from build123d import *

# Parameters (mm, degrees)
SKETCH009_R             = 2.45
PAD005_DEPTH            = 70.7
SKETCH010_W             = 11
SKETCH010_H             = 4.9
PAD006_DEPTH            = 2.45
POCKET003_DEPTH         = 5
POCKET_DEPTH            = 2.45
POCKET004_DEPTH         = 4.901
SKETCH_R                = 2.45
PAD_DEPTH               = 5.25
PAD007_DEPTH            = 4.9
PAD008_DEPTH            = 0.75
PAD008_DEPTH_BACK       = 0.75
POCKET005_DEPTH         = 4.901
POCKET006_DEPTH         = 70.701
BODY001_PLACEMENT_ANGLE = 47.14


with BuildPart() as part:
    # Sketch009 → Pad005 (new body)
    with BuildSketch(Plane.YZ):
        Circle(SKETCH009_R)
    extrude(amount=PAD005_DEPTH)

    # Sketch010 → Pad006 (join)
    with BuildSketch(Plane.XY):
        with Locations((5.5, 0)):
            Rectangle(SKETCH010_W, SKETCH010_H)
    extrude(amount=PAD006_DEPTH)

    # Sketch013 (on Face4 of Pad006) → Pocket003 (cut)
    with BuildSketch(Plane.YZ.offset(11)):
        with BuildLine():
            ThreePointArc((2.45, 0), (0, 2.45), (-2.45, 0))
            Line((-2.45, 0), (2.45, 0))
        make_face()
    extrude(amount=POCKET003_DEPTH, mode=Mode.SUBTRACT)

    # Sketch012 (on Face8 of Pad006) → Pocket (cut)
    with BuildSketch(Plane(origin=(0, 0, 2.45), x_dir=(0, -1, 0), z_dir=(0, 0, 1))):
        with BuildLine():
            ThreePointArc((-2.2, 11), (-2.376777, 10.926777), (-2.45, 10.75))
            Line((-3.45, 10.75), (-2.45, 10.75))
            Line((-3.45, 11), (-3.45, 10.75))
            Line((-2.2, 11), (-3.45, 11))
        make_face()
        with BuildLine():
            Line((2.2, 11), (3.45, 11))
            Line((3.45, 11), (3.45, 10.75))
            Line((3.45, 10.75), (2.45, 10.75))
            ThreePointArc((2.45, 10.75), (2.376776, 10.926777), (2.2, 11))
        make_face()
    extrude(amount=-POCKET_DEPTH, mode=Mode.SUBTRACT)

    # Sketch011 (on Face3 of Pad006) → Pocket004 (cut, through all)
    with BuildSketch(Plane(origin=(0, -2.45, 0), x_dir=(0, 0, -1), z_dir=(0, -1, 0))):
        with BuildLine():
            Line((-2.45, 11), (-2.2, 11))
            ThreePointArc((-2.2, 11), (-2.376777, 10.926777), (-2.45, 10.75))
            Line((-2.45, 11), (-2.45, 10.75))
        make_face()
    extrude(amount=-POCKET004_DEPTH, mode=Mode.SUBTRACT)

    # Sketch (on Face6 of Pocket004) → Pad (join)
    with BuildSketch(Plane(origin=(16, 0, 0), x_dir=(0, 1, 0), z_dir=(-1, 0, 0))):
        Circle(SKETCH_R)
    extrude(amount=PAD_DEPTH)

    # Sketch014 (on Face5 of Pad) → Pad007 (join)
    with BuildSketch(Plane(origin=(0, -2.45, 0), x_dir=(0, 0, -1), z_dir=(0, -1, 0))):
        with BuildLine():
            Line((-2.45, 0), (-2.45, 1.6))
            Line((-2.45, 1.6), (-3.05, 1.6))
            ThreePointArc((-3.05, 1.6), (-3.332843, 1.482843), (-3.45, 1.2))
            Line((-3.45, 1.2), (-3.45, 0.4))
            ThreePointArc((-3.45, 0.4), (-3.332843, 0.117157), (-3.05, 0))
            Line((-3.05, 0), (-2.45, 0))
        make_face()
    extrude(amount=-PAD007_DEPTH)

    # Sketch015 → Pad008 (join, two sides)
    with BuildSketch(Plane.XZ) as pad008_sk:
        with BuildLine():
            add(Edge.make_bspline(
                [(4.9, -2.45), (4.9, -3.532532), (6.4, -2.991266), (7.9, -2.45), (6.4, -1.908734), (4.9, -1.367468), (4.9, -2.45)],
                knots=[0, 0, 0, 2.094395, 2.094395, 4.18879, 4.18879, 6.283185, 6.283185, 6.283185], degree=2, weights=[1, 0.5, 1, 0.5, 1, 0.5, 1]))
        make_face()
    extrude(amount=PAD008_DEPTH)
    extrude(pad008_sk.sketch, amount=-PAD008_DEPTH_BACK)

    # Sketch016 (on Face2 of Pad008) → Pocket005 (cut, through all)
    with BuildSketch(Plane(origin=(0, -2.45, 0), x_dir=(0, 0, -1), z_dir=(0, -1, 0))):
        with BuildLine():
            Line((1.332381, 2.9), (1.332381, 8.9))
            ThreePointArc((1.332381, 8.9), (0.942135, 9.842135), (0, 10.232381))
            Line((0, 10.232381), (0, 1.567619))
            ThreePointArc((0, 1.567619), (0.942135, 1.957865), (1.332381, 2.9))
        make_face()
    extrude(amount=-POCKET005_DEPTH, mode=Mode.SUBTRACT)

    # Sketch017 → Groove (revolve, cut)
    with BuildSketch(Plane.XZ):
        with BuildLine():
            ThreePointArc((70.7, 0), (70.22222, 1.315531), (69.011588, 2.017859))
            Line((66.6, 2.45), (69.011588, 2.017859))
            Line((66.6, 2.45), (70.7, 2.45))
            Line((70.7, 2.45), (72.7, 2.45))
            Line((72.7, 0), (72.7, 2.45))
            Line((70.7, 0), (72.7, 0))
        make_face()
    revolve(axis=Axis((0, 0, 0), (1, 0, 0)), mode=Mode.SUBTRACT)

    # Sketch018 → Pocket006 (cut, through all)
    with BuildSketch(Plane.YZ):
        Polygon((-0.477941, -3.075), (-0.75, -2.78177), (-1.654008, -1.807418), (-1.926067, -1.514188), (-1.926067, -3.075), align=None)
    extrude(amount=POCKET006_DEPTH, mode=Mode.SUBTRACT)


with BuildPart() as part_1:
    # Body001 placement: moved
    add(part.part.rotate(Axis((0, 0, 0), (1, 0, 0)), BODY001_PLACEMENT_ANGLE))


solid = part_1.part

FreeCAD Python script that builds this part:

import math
import FreeCAD as App
import Part
import Sketcher
from FreeCAD import Vector

doc = App.newDocument("Part")
params = doc.addObject("Spreadsheet::Sheet", "Params")
for row, (alias, value) in enumerate([
    ("sketch1_diameter", "4.9 mm"),
    ("pad1_length", "70.7 mm"),
    ("sketch2_width", "11 mm"),
    ("sketch2_height", "4.9 mm"),
    ("pad2_length", "2.45 mm"),
    ("sketch3_radius", "2.45 mm"),
    ("pocket1_length", "5 mm"),
    ("sketch4_height", "1 mm"),
    ("sketch4_radius", "0.249999 mm"),
    ("pocket2_length", "2.45 mm"),
    ("sketch5_radius", "0.249999 mm"),
    ("sketch6_diameter", "4.9 mm"),
    ("pad3_length", "5.25 mm"),
    ("sketch7_radius", "0.399999 mm"),
    ("sketch7_width", "1.6 mm"),
    ("sketch7_width2", "0.8 mm"),
    ("sketch7_height", "0.6 mm"),
    ("pad4_length", "4.9 mm"),
    ("pad5_length", "0.75 mm"),
    ("pad5_length2", "0.75 mm"),
    ("sketch9_width", "6 mm"),
    ("sketch10_width", "2 mm"),
    ("sketch10_width2", "6.1 mm"),
    ("sketch10_height", "2.45 mm"),
    ("sketch10_length", "2.450001 mm"),
    ("groove_angle", "360 deg"),
    ("sketch11_length", "0.4 mm"),
], start=1):
    params.set(f"A{row}", alias)
    params.set(f"B{row}", "=" + value)
    params.setAlias(f"B{row}", alias)

body = doc.addObject("PartDesign::Body", "Body")

# Sketch on YZ plane
sketch1 = body.newObject("Sketcher::SketchObject", "Sketch")
sketch1.AttachmentSupport = (doc.getObject("YZ_Plane"), [""])
sketch1.MapMode = "FlatFace"
sketch1.addGeometry(Part.Circle(Vector(0, 0, 0), Vector(0, 0, 1), 2.5), False)
sketch1.addConstraint(Sketcher.Constraint("Coincident", 0, 3, -1, 1))
sketch1.addConstraint(Sketcher.Constraint("Diameter", 0, 4.9))
sketch1.setExpression("Constraints[1]", "Params.sketch1_diameter")
pad1 = body.newObject("PartDesign::Pad", "Pad")
pad1.Profile = sketch1
pad1.setExpression("Length", "Params.pad1_length")

# Sketch on XY plane
sketch2 = body.newObject("Sketcher::SketchObject", "Sketch001")
sketch2.AttachmentSupport = (doc.getObject("XY_Plane"), [""])
sketch2.MapMode = "FlatFace"
sketch2.addGeometry(Part.LineSegment(Vector(0, 2.5, 0), Vector(0, -2.5, 0)), False)
sketch2.addGeometry(Part.LineSegment(Vector(0, -2.5, 0), Vector(11, -2.5, 0)), False)
sketch2.addGeometry(Part.LineSegment(Vector(11, -2.5, 0), Vector(11, 2.5, 0)), False)
sketch2.addGeometry(Part.LineSegment(Vector(11, 2.5, 0), Vector(0, 2.5, 0)), False)
sketch2.addConstraint(Sketcher.Constraint("Coincident", 0, 2, 1, 1))
sketch2.addConstraint(Sketcher.Constraint("Coincident", 1, 2, 2, 1))
sketch2.addConstraint(Sketcher.Constraint("Coincident", 2, 2, 3, 1))
sketch2.addConstraint(Sketcher.Constraint("Coincident", 3, 2, 0, 1))
sketch2.addConstraint(Sketcher.Constraint("Vertical", 0))
sketch2.addConstraint(Sketcher.Constraint("Horizontal", 1))
sketch2.addConstraint(Sketcher.Constraint("Vertical", 2))
sketch2.addConstraint(Sketcher.Constraint("Horizontal", 3))
sketch2.addConstraint(Sketcher.Constraint("Symmetric", 0, 2, 3, 2, -1, 1))
sketch2.addConstraint(Sketcher.Constraint("DistanceX", 1, 1, 1, 2, 11.0))
sketch2.addConstraint(Sketcher.Constraint("DistanceY", 0, 2, 0, 1, 4.9))
sketch2.setExpression("Constraints[9]", "Params.sketch2_width")
sketch2.setExpression("Constraints[10]", "Params.sketch2_height")
pad2 = body.newObject("PartDesign::Pad", "Pad001")
pad2.Profile = sketch2
pad2.setExpression("Length", "Params.pad2_length")

# Sketch on YZ plane
sketch3 = body.newObject("Sketcher::SketchObject", "Sketch002")
sketch3.AttachmentSupport = (doc.getObject("YZ_Plane"), [""])
sketch3.MapMode = "FlatFace"
sketch3.AttachmentOffset = App.Placement(Vector(0, 0, 11), App.Rotation())
sketch3.addGeometry(Part.ArcOfCircle(Part.Circle(Vector(0, 0, 0), Vector(0, 0, 1), 2.5), math.radians(0), math.radians(180)), False)
sketch3.addGeometry(Part.LineSegment(Vector(-2.5, 0, 0), Vector(2.5, 0, 0)), False)
sketch3.addConstraint(Sketcher.Constraint("Coincident", 0, 1, 1, 2))
sketch3.addConstraint(Sketcher.Constraint("Coincident", 1, 1, 0, 2))
sketch3.addConstraint(Sketcher.Constraint("Horizontal", 1))
sketch3.addConstraint(Sketcher.Constraint("Coincident", 0, 3, -1, 1))
sketch3.addConstraint(Sketcher.Constraint("PointOnObject", 0, 1, -1))
sketch3.addConstraint(Sketcher.Constraint("Radius", 0, 2.45))
sketch3.setExpression("Constraints[5]", "Params.sketch3_radius")
pocket1 = body.newObject("PartDesign::Pocket", "Pocket")
pocket1.Profile = sketch3
pocket1.setExpression("Length", "Params.pocket1_length")
pocket1.Reversed = True

# Sketch on XY plane
sketch4 = body.newObject("Sketcher::SketchObject", "Sketch003")
sketch4.AttachmentSupport = (doc.getObject("XY_Plane"), [""])
sketch4.MapMode = "FlatFace"
sketch4.AttachmentOffset = App.Placement(Vector(0, 0, 2.45), App.Rotation())
sketch4.addGeometry(Part.ArcOfCircle(Part.Circle(Vector(10.75, 2.2, 0), Vector(0, 0, 1), 0.25), math.radians(0), math.radians(90)), False)
sketch4.addGeometry(Part.LineSegment(Vector(11, 2.2, 0), Vector(11, 3.45, 0)), False)
sketch4.addGeometry(Part.LineSegment(Vector(11, 3.45, 0), Vector(10.75, 3.45, 0)), False)
sketch4.addGeometry(Part.LineSegment(Vector(10.75, 3.45, 0), Vector(10.75, 2.45, 0)), False)
sketch4.addGeometry(Part.LineSegment(Vector(11, -3.45, 0), Vector(11, -2.2, 0)), False)
sketch4.addGeometry(Part.ArcOfCircle(Part.Circle(Vector(10.75, -2.2, 0), Vector(0, 0, 1), 0.25), math.radians(-90), math.radians(0)), False)
sketch4.addGeometry(Part.LineSegment(Vector(10.75, -2.45, 0), Vector(10.75, -3.45, 0)), False)
sketch4.addGeometry(Part.LineSegment(Vector(10.75, -3.45, 0), Vector(11, -3.45, 0)), False)
sketch4.addConstraint(Sketcher.Constraint("Coincident", 0, 1, 1, 1))
sketch4.addConstraint(Sketcher.Constraint("Coincident", 1, 2, 2, 1))
sketch4.addConstraint(Sketcher.Constraint("Coincident", 2, 2, 3, 1))
sketch4.addConstraint(Sketcher.Constraint("Coincident", 3, 2, 0, 2))
sketch4.addConstraint(Sketcher.Constraint("Coincident", 4, 2, 5, 2))
sketch4.addConstraint(Sketcher.Constraint("Coincident", 5, 1, 6, 1))
sketch4.addConstraint(Sketcher.Constraint("Coincident", 6, 2, 7, 1))
sketch4.addConstraint(Sketcher.Constraint("Coincident", 7, 2, 4, 1))
sketch4.addConstraint(Sketcher.Constraint("Vertical", 1))
sketch4.addConstraint(Sketcher.Constraint("Horizontal", 2))
sketch4.addConstraint(Sketcher.Constraint("Vertical", 3))
sketch4.addConstraint(Sketcher.Constraint("Vertical", 4))
sketch4.addConstraint(Sketcher.Constraint("Vertical", 6))
sketch4.addConstraint(Sketcher.Constraint("Horizontal", 7))
sketch4.addConstraint(Sketcher.Constraint("Equal", 0, 5))
sketch4.addConstraint(Sketcher.Constraint("Symmetric", 0, 3, 5, 3, -1))
sketch4.addConstraint(Sketcher.Constraint("Symmetric", 2, 2, 6, 2, -1))
sketch4.addConstraint(Sketcher.Constraint("Horizontal", 5, 3, 4, 2))
sketch4.addConstraint(Sketcher.Constraint("Vertical", 5, 3, 2, 2))
sketch4.addConstraint(Sketcher.Constraint("Equal", 1, 4))
sketch4.addConstraint(Sketcher.Constraint("DistanceY", 3, 2, 3, 1, 1.0))
sketch4.addConstraint(Sketcher.Constraint("Radius", 0, 0.249999))
sketch4.addConstraint(Sketcher.Constraint("DistanceX", -1, 1, 0, 1, 11.0))
sketch4.addConstraint(Sketcher.Constraint("DistanceY", -1, 1, 0, 3, 2.200001))
sketch4.setExpression("Constraints[20]", "Params.sketch4_height")
sketch4.setExpression("Constraints[21]", "Params.sketch4_radius")
pocket2 = body.newObject("PartDesign::Pocket", "Pocket001")
pocket2.Profile = sketch4
pocket2.setExpression("Length", "Params.pocket2_length")

# Sketch on XZ plane
sketch5 = body.newObject("Sketcher::SketchObject", "Sketch004")
sketch5.AttachmentSupport = (doc.getObject("XZ_Plane"), [""])
sketch5.MapMode = "FlatFace"
sketch5.AttachmentOffset = App.Placement(Vector(0, 0, 2.45), App.Rotation())
sketch5.addGeometry(Part.LineSegment(Vector(11, 2.2, 0), Vector(11, 2.45, 0)), False)
sketch5.addGeometry(Part.LineSegment(Vector(11, 2.45, 0), Vector(10.75, 2.45, 0)), False)
sketch5.addGeometry(Part.ArcOfCircle(Part.Circle(Vector(10.75, 2.2, 0), Vector(0, 0, 1), 0.25), math.radians(0), math.radians(90)), False)
sketch5.addConstraint(Sketcher.Constraint("Coincident", 0, 2, 1, 1))
sketch5.addConstraint(Sketcher.Constraint("Coincident", 1, 2, 2, 2))
sketch5.addConstraint(Sketcher.Constraint("Coincident", 2, 1, 0, 1))
sketch5.addConstraint(Sketcher.Constraint("Vertical", 0))
sketch5.addConstraint(Sketcher.Constraint("Horizontal", 1))
sketch5.addConstraint(Sketcher.Constraint("Vertical", 2, 3, 1, 2))
sketch5.addConstraint(Sketcher.Constraint("Equal", 1, 0))
sketch5.addConstraint(Sketcher.Constraint("Radius", 2, 0.249999))
sketch5.addConstraint(Sketcher.Constraint("DistanceX", -1, 1, 0, 2, 11.0))
sketch5.addConstraint(Sketcher.Constraint("DistanceY", -1, 1, 2, 3, 2.200001))
sketch5.setExpression("Constraints[7]", "Params.sketch5_radius")
pocket3 = body.newObject("PartDesign::Pocket", "Pocket002")
pocket3.Profile = sketch5
pocket3.Type = "ThroughAll"

# Sketch on YZ plane
sketch6 = body.newObject("Sketcher::SketchObject", "Sketch005")
sketch6.AttachmentSupport = (doc.getObject("YZ_Plane"), [""])
sketch6.MapMode = "FlatFace"
sketch6.AttachmentOffset = App.Placement(Vector(0, 0, 16), App.Rotation())
sketch6.addGeometry(Part.Circle(Vector(0, 0, 0), Vector(0, 0, 1), 2.5), False)
sketch6.addConstraint(Sketcher.Constraint("Coincident", 0, 3, -1, 1))
sketch6.addConstraint(Sketcher.Constraint("Diameter", 0, 4.9))
sketch6.setExpression("Constraints[1]", "Params.sketch6_diameter")
pad3 = body.newObject("PartDesign::Pad", "Pad002")
pad3.Profile = sketch6
pad3.setExpression("Length", "Params.pad3_length")
pad3.Reversed = True

# Sketch on XZ plane
sketch7 = body.newObject("Sketcher::SketchObject", "Sketch006")
sketch7.AttachmentSupport = (doc.getObject("XZ_Plane"), [""])
sketch7.MapMode = "FlatFace"
sketch7.AttachmentOffset = App.Placement(Vector(0, 0, 2.45), App.Rotation())
sketch7.addGeometry(Part.LineSegment(Vector(0, 2.45, 0), Vector(1.6, 2.45, 0)), False)
sketch7.addGeometry(Part.LineSegment(Vector(1.6, 2.45, 0), Vector(1.6, 3.05, 0)), False)
sketch7.addGeometry(Part.ArcOfCircle(Part.Circle(Vector(1.2, 3.05, 0), Vector(0, 0, 1), 0.4), math.radians(0), math.radians(90)), False)
sketch7.addGeometry(Part.LineSegment(Vector(1.2, 3.45, 0), Vector(0.4, 3.45, 0)), False)
sketch7.addGeometry(Part.ArcOfCircle(Part.Circle(Vector(0.4, 3.05, 0), Vector(0, 0, 1), 0.4), math.radians(90), math.radians(180)), False)
sketch7.addGeometry(Part.LineSegment(Vector(0, 3.05, 0), Vector(0, 2.45, 0)), False)
sketch7.addConstraint(Sketcher.Constraint("Coincident", 0, 2, 1, 1))
sketch7.addConstraint(Sketcher.Constraint("Coincident", 1, 2, 2, 1))
sketch7.addConstraint(Sketcher.Constraint("Coincident", 2, 2, 3, 1))
sketch7.addConstraint(Sketcher.Constraint("Coincident", 3, 2, 4, 1))
sketch7.addConstraint(Sketcher.Constraint("Coincident", 4, 2, 5, 1))
sketch7.addConstraint(Sketcher.Constraint("Coincident", 5, 2, 0, 1))
sketch7.addConstraint(Sketcher.Constraint("Horizontal", 0))
sketch7.addConstraint(Sketcher.Constraint("Vertical", 1))
sketch7.addConstraint(Sketcher.Constraint("Horizontal", 3))
sketch7.addConstraint(Sketcher.Constraint("Vertical", 5))
sketch7.addConstraint(Sketcher.Constraint("Equal", 2, 4))
sketch7.addConstraint(Sketcher.Constraint("PointOnObject", 4, 2, -2))
sketch7.addConstraint(Sketcher.Constraint("Horizontal", 4, 3, 1, 2))
sketch7.addConstraint(Sketcher.Constraint("Horizontal", 1, 2, 4, 2))
sketch7.addConstraint(Sketcher.Constraint("Vertical", 4, 3, 3, 2))
sketch7.addConstraint(Sketcher.Constraint("Radius", 2, 0.399999))
sketch7.addConstraint(Sketcher.Constraint("DistanceX", 0, 1, 0, 2, 1.6))
sketch7.addConstraint(Sketcher.Constraint("DistanceX", 3, 2, 3, 1, 0.8))
sketch7.addConstraint(Sketcher.Constraint("DistanceY", 1, 1, 1, 2, 0.6))
sketch7.addConstraint(Sketcher.Constraint("DistanceY", -1, 1, 2, 3, 3.050001))
sketch7.setExpression("Constraints[15]", "Params.sketch7_radius")
sketch7.setExpression("Constraints[16]", "Params.sketch7_width")
sketch7.setExpression("Constraints[17]", "Params.sketch7_width2")
sketch7.setExpression("Constraints[18]", "Params.sketch7_height")
pad4 = body.newObject("PartDesign::Pad", "Pad003")
pad4.Profile = sketch7
pad4.setExpression("Length", "Params.pad4_length")
pad4.Reversed = True

# Sketch on XZ plane
sketch8 = body.newObject("Sketcher::SketchObject", "Sketch007")
sketch8.AttachmentSupport = (doc.getObject("XZ_Plane"), [""])
sketch8.MapMode = "FlatFace"
sketch8.addGeometry(Part.BSplineCurve([Vector(4.9, -2.45, 0), Vector(4.9, -3.532532, 0), Vector(6.4, -2.991266, 0), Vector(7.9, -2.45, 0), Vector(6.4, -1.908734, 0), Vector(4.9, -1.367468, 0), Vector(4.9, -2.45, 0)], [3, 2, 2, 3], [0, 2.094395, 4.18879, 6.283185], False, 2, [1, 0.5, 1, 0.5, 1, 0.5, 1], False), False)
sketch8.addConstraint(Sketcher.Constraint("Block", 0))
pad5 = body.newObject("PartDesign::Pad", "Pad004")
pad5.Profile = sketch8
pad5.Type = "TwoLengths"
pad5.setExpression("Length", "Params.pad5_length")
pad5.setExpression("Length2", "Params.pad5_length2")

# Sketch on XZ plane
sketch9 = body.newObject("Sketcher::SketchObject", "Sketch008")
sketch9.AttachmentSupport = (doc.getObject("XZ_Plane"), [""])
sketch9.MapMode = "FlatFace"
sketch9.AttachmentOffset = App.Placement(Vector(0, 0, 2.45), App.Rotation())
sketch9.addGeometry(Part.LineSegment(Vector(2.9, -1.3, 0), Vector(8.9, -1.3, 0)), False)
sketch9.addGeometry(Part.ArcOfCircle(Part.Circle(Vector(8.9, 0, 0), Vector(0, 0, 1), 1.3), math.radians(-90), math.radians(0)), False)
sketch9.addGeometry(Part.LineSegment(Vector(10.2, 0, 0), Vector(1.6, 0, 0)), False)
sketch9.addGeometry(Part.ArcOfCircle(Part.Circle(Vector(2.9, 0, 0), Vector(0, 0, 1), 1.3), math.radians(-180), math.radians(-90)), False)
sketch9.addConstraint(Sketcher.Constraint("Tangent", 0, 2, 1, 1))
sketch9.addConstraint(Sketcher.Constraint("Coincident", 1, 2, 2, 1))
sketch9.addConstraint(Sketcher.Constraint("Coincident", 2, 2, 3, 1))
sketch9.addConstraint(Sketcher.Constraint("Tangent", 3, 2, 0, 1))
sketch9.addConstraint(Sketcher.Constraint("Horizontal", 0))
sketch9.addConstraint(Sketcher.Constraint("Horizontal", 2))
sketch9.addConstraint(Sketcher.Constraint("Equal", 1, 3))
sketch9.addConstraint(Sketcher.Constraint("PointOnObject", 1, 2, -1))
sketch9.addConstraint(Sketcher.Constraint("DistanceX", 0, 1, 0, 2, 6.0))
sketch9.addConstraint(Sketcher.Constraint("DistanceX", -1, 1, 0, 2, 8.9))
sketch9.addConstraint(Sketcher.Constraint("Radius", 1, 1.332383))
sketch9.addConstraint(Sketcher.Constraint("DistanceY", 0, 2, -1, 1, 1.332381))
sketch9.setExpression("Constraints[8]", "Params.sketch9_width")
pocket4 = body.newObject("PartDesign::Pocket", "Pocket003")
pocket4.Profile = sketch9
pocket4.Type = "ThroughAll"

# Sketch on XZ plane
sketch10 = body.newObject("Sketcher::SketchObject", "Sketch009")
sketch10.AttachmentSupport = (doc.getObject("XZ_Plane"), [""])
sketch10.MapMode = "FlatFace"
sketch10.addGeometry(Part.ArcOfCircle(Part.Circle(Vector(68.6, 0, 0), Vector(0, 0, 1), 2.1), math.radians(0), math.radians(80)), False)
sketch10.addGeometry(Part.LineSegment(Vector(70.7, 0, 0), Vector(72.7, 0, 0)), False)
sketch10.addGeometry(Part.LineSegment(Vector(72.7, 0, 0), Vector(72.7, 2.5, 0)), False)
sketch10.addGeometry(Part.LineSegment(Vector(72.7, 2.5, 0), Vector(66.6, 2.5, 0)), False)
sketch10.addGeometry(Part.LineSegment(Vector(66.6, 2.5, 0), Vector(69, 2, 0)), False)
sketch10.addConstraint(Sketcher.Constraint("Coincident", 0, 1, 1, 1))
sketch10.addConstraint(Sketcher.Constraint("Coincident", 1, 2, 2, 1))
sketch10.addConstraint(Sketcher.Constraint("Coincident", 2, 2, 3, 1))
sketch10.addConstraint(Sketcher.Constraint("Coincident", 3, 2, 4, 1))
sketch10.addConstraint(Sketcher.Constraint("Tangent", 4, 2, 0, 2))
sketch10.addConstraint(Sketcher.Constraint("Horizontal", 1))
sketch10.addConstraint(Sketcher.Constraint("Vertical", 2))
sketch10.addConstraint(Sketcher.Constraint("Horizontal", 3))
sketch10.addConstraint(Sketcher.Constraint("PointOnObject", 0, 3, -1))
sketch10.addConstraint(Sketcher.Constraint("PointOnObject", 0, 1, -1))
sketch10.addConstraint(Sketcher.Constraint("DistanceX", 1, 1, 1, 2, 2.0))
sketch10.addConstraint(Sketcher.Constraint("DistanceX", 3, 2, 3, 1, 6.1))
sketch10.addConstraint(Sketcher.Constraint("DistanceY", 2, 1, 2, 2, 2.45))
sketch10.addConstraint(Sketcher.Constraint("DistanceX", -1, 1, 0, 1, 70.7))
sketch10.addConstraint(Sketcher.Constraint("Distance", 4, 2.450001))
sketch10.setExpression("Constraints[10]", "Params.sketch10_width")
sketch10.setExpression("Constraints[11]", "Params.sketch10_width2")
sketch10.setExpression("Constraints[12]", "Params.sketch10_height")
sketch10.setExpression("Constraints[14]", "Params.sketch10_length")
groove = body.newObject("PartDesign::Groove", "Groove")
groove.Profile = sketch10
groove.ReferenceAxis = (sketch10, ["H_Axis"])
groove.setExpression("Angle", "Params.groove_angle")

# Sketch on YZ plane
sketch11 = body.newObject("Sketcher::SketchObject", "Sketch010")
sketch11.AttachmentSupport = (doc.getObject("YZ_Plane"), [""])
sketch11.MapMode = "FlatFace"
sketch11.addGeometry(Part.LineSegment(Vector(-0.48, -3.08, 0), Vector(-0.75, -2.78, 0)), False)
sketch11.addGeometry(Part.LineSegment(Vector(-0.75, -2.78, 0), Vector(-1.65, -1.81, 0)), False)
sketch11.addGeometry(Part.LineSegment(Vector(-1.65, -1.81, 0), Vector(-1.93, -1.51, 0)), False)
sketch11.addGeometry(Part.LineSegment(Vector(-1.93, -1.51, 0), Vector(-1.93, -3.08, 0)), False)
sketch11.addGeometry(Part.LineSegment(Vector(-1.93, -3.08, 0), Vector(-0.48, -3.08, 0)), False)
sketch11.addConstraint(Sketcher.Constraint("Coincident", 0, 2, 1, 1))
sketch11.addConstraint(Sketcher.Constraint("Coincident", 1, 2, 2, 1))
sketch11.addConstraint(Sketcher.Constraint("Coincident", 2, 2, 3, 1))
sketch11.addConstraint(Sketcher.Constraint("Coincident", 3, 2, 4, 1))
sketch11.addConstraint(Sketcher.Constraint("Coincident", 4, 2, 0, 1))
sketch11.addConstraint(Sketcher.Constraint("Vertical", 3))
sketch11.addConstraint(Sketcher.Constraint("Horizontal", 4))
sketch11.addConstraint(Sketcher.Constraint("Parallel", 0, 1))
sketch11.addConstraint(Sketcher.Constraint("Parallel", 1, 2))
sketch11.addConstraint(Sketcher.Constraint("Equal", 0, 2))
sketch11.addConstraint(Sketcher.Constraint("Distance", 0, 0.4))
sketch11.addConstraint(Sketcher.Constraint("DistanceX", 0, 2, -1, 1, 0.75))
sketch11.addConstraint(Sketcher.Constraint("DistanceY", 3, 2, -1, 1, 3.075))
sketch11.addConstraint(Sketcher.Constraint("DistanceX", 4, 1, 4, 2, 1.448126))
sketch11.addConstraint(Sketcher.Constraint("DistanceY", 3, 2, 3, 1, 1.560812))
sketch11.setExpression("Constraints[10]", "Params.sketch11_length")
pocket5 = body.newObject("PartDesign::Pocket", "Pocket004")
pocket5.Profile = sketch11
pocket5.Type = "ThroughAll"
pocket5.Reversed = True
body2 = doc.addObject("PartDesign::Body", "Body001")
doc.recompute()

body.Placement = App.Placement(Vector(0, 0, 0), App.Rotation(Vector(1, 0, 0), 47.14))
boolean = body2.newObject("PartDesign::Boolean", "Boolean")
boolean.Type = "Fuse"
boolean.addObjects([body])

doc.recompute()
